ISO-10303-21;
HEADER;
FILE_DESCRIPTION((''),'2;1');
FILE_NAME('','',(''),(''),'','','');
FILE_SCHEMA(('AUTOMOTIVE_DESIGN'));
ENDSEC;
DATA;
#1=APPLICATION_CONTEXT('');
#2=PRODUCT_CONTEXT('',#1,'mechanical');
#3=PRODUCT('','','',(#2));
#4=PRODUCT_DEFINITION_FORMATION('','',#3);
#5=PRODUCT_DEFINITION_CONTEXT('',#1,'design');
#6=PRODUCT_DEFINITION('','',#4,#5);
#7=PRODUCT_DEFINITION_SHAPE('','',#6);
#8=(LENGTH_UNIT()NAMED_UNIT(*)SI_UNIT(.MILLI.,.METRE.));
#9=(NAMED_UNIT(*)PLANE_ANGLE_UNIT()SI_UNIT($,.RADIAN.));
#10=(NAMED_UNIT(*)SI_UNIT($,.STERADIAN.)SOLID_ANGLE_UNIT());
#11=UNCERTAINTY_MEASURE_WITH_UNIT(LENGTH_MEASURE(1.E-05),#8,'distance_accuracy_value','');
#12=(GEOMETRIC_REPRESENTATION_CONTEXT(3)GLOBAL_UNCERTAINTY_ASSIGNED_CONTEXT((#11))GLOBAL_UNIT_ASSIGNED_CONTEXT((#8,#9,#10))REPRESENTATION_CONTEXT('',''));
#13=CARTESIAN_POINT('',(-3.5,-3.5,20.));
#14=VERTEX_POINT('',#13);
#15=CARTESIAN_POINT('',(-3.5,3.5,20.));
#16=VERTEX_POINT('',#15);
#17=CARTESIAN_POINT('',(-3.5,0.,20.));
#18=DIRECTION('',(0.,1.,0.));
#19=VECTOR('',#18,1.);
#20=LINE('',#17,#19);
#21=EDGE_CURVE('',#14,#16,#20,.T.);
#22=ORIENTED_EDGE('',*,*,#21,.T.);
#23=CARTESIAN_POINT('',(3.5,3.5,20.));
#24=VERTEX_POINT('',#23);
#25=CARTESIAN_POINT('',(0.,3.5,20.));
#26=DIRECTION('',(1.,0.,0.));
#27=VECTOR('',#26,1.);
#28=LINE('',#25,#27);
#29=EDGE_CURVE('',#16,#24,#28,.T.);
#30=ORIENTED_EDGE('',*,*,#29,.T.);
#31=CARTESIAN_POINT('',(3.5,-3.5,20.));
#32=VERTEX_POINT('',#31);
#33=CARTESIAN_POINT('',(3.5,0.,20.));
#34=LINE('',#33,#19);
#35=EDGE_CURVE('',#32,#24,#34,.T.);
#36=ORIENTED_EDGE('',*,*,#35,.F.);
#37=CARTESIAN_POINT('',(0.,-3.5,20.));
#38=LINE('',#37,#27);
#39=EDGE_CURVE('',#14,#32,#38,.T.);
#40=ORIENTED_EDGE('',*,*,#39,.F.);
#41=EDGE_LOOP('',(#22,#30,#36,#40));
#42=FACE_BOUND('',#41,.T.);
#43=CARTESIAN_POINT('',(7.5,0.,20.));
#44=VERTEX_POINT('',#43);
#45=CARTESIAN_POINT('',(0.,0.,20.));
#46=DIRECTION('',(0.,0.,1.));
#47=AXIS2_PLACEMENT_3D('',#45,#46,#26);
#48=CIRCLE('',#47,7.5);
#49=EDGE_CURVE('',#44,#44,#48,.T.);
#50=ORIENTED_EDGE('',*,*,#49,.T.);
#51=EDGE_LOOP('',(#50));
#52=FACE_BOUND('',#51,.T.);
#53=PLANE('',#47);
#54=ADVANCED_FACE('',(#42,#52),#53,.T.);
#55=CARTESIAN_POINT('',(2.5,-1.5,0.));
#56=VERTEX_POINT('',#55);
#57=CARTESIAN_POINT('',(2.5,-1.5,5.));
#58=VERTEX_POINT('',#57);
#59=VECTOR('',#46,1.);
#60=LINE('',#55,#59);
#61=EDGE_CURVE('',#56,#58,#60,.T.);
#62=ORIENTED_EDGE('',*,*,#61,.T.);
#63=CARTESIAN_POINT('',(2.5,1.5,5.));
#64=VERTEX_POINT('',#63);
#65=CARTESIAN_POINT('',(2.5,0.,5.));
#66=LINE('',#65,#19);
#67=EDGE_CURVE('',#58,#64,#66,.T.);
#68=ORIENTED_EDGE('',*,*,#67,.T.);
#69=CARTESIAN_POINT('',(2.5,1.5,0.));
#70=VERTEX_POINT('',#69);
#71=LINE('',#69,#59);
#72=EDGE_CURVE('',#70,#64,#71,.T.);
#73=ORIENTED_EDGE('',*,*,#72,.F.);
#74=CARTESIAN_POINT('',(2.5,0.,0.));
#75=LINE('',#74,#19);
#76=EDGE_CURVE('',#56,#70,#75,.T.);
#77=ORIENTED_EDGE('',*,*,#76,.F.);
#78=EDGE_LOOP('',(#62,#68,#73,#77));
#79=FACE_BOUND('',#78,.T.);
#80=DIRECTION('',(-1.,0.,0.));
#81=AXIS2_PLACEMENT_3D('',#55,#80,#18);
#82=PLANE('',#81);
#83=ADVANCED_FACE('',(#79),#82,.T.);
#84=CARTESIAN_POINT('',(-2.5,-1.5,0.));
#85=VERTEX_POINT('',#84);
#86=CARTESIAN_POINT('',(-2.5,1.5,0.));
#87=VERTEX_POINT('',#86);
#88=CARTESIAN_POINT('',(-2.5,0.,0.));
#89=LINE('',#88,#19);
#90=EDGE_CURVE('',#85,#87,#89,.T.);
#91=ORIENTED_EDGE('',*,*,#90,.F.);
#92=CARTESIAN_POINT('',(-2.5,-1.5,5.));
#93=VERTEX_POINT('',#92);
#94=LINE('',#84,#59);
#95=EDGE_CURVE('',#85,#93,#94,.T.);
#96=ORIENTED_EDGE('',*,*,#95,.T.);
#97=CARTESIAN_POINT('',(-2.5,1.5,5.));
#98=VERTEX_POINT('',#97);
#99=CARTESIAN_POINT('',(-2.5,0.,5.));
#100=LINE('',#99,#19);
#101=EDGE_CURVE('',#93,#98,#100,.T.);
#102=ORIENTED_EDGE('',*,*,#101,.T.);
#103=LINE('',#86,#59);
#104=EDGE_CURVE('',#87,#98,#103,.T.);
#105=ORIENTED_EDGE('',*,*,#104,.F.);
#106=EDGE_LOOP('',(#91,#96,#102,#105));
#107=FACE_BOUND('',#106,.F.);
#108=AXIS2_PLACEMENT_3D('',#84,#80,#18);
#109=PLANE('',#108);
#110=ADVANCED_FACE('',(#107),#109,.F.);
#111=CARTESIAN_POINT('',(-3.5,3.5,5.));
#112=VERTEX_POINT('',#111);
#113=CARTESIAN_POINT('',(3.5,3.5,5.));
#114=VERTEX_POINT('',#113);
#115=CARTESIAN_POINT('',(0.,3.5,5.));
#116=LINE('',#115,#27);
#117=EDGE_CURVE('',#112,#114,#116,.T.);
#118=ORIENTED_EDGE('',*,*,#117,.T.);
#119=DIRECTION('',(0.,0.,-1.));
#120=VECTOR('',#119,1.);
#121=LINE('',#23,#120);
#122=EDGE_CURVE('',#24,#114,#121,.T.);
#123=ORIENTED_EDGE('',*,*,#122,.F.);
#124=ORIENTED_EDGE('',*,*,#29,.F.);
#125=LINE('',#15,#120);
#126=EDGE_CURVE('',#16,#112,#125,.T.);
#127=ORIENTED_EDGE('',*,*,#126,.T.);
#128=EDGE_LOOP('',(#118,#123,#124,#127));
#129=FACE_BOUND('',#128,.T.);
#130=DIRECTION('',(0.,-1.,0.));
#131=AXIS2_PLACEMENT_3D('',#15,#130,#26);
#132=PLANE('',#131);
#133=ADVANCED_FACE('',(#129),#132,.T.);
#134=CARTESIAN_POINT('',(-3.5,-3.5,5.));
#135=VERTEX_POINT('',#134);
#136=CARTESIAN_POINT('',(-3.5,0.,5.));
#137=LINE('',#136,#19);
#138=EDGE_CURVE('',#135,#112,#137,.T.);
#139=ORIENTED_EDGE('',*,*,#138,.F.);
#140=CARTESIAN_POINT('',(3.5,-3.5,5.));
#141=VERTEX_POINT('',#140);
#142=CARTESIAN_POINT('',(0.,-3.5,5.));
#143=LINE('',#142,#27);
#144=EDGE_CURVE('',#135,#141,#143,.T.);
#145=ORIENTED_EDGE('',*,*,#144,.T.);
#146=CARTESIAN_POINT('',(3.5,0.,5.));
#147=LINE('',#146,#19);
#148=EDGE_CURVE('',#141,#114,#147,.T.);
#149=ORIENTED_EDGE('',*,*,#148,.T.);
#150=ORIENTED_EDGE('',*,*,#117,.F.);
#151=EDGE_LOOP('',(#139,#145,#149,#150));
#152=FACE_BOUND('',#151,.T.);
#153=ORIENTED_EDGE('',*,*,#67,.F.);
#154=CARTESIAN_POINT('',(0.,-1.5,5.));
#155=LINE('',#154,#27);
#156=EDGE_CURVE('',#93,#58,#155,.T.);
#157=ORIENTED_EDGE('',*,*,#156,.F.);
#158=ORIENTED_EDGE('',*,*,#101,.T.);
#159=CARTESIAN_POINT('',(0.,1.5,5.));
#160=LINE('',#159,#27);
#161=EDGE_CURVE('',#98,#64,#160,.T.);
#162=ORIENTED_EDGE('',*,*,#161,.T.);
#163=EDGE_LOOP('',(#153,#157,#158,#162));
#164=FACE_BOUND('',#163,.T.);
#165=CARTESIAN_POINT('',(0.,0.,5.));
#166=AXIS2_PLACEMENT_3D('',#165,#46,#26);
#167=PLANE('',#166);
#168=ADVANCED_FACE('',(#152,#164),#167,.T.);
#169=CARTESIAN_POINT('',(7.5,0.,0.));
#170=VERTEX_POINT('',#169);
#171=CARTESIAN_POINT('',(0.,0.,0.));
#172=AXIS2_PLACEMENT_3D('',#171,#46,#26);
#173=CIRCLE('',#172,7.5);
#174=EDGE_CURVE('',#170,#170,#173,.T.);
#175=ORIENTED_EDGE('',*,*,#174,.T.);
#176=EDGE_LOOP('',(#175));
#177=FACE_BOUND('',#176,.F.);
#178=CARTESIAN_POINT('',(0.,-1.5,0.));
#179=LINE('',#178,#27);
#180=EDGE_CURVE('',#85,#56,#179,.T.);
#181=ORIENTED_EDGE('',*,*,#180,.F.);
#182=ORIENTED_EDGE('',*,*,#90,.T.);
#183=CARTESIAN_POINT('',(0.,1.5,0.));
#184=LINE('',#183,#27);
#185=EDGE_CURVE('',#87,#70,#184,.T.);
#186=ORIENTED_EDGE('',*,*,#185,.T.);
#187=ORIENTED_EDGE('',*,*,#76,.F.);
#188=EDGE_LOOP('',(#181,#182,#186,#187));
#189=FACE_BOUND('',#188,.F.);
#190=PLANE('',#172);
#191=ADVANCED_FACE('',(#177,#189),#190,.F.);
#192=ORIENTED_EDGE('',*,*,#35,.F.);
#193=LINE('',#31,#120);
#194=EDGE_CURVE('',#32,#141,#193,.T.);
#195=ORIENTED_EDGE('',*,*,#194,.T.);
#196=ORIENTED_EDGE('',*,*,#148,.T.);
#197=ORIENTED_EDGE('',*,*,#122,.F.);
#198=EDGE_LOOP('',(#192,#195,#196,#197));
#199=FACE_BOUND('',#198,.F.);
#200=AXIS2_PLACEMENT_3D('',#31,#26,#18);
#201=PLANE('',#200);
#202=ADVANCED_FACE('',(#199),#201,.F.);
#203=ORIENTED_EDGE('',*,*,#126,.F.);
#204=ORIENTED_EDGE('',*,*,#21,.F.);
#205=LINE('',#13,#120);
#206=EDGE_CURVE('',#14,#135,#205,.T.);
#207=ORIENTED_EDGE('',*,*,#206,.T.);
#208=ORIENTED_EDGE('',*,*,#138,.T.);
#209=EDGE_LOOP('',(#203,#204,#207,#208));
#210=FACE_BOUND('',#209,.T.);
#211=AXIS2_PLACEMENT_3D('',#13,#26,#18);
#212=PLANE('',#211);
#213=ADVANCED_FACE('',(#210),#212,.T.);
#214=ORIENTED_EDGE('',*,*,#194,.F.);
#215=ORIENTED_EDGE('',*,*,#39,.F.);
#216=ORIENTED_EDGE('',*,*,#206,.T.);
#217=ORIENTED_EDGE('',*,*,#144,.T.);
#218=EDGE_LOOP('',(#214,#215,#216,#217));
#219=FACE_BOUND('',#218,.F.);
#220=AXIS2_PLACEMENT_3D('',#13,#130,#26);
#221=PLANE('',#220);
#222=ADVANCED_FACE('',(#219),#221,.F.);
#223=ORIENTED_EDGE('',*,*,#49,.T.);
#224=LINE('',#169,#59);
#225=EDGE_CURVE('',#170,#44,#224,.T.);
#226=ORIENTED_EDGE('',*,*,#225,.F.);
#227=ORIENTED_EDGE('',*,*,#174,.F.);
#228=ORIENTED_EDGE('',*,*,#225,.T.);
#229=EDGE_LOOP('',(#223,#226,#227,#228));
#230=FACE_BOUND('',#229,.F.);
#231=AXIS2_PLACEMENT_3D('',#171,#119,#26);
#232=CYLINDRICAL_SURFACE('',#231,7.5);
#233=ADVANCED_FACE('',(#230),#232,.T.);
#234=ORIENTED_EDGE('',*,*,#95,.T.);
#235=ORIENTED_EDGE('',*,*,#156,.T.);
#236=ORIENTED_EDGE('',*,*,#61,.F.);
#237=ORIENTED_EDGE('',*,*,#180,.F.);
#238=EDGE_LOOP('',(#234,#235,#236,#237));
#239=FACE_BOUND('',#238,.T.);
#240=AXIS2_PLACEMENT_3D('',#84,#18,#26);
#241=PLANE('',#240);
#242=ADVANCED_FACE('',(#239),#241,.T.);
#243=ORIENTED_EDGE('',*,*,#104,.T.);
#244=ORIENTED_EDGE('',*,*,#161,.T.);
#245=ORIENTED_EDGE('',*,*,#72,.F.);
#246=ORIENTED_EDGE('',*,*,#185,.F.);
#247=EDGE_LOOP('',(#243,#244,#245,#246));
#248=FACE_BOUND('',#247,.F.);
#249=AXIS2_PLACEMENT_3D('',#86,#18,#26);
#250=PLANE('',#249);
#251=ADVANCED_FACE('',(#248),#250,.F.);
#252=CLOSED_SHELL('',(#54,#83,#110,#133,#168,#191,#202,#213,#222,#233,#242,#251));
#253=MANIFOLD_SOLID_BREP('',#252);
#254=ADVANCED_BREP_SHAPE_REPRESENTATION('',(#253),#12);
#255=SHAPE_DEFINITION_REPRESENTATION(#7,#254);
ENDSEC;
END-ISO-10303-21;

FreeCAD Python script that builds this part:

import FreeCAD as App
import Part
import Sketcher

V = App.Vector
Q = App.Units.Quantity


def add_polygon(sketch, points):
    """Adds a closed chain of lines whose ends are joined by coincident constraints."""
    first, n = sketch.GeometryCount, len(points)
    for a, b in zip(points, points[1:] + points[:1]):
        sketch.addGeometry(Part.LineSegment(App.Vector(*a, 0), App.Vector(*b, 0)), False)
    for i in range(n):
        sketch.addConstraint(Sketcher.Constraint("Coincident", first + i, 2, first + (i + 1) % n, 1))

doc = App.newDocument("Part")
params = doc.addObject("Spreadsheet::Sheet", "Params")
for row, (alias, value) in enumerate([
    ("sketch1_diameter", "15 mm"),
    ("sketch1_width", "5 mm"),
    ("sketch1_height", "3 mm"),
    ("pad1_length", "20 mm"),
    ("sketch2_width", "7 mm"),
    ("sketch2_width2", "5 mm"),
    ("sketch2_height", "3 mm"),
    ("pocket1_length", "15 mm"),
], start=1):
    params.set(f"A{row}", alias)
    params.set(f"B{row}", "=" + value)
    params.setAlias(f"B{row}", alias)

body = doc.addObject("PartDesign::Body", "Body")

# Sketch on XY plane
sketch1 = body.newObject("Sketcher::SketchObject", "Sketch")
sketch1.AttachmentSupport = (doc.getObject("XY_Plane"), [""])
sketch1.MapMode = "FlatFace"
sketch1.addGeometry(Part.Circle(V(0, 0, 0), V(0, 0, 1), 7.5), False)  # 0
add_polygon(sketch1, [(2.5, -1.5), (-2.5, -1.5), (-2.5, 1.5), (2.5, 1.5)])  # lines 1-4
sketch1.addConstraint(Sketcher.Constraint("Horizontal", 1))
sketch1.addConstraint(Sketcher.Constraint("Vertical", 2))
sketch1.addConstraint(Sketcher.Constraint("Horizontal", 3))
sketch1.addConstraint(Sketcher.Constraint("Vertical", 4))
sketch1.addConstraint(Sketcher.Constraint("Coincident", 0, 3, -1, 1))
sketch1.addConstraint(Sketcher.Constraint("Symmetric", 1, 2, 3, 2, -1, 1))
sketch1.addConstraint(Sketcher.Constraint("Diameter", 0, Q("15 mm")))
sketch1.addConstraint(Sketcher.Constraint("DistanceX", 1, 2, 1, 1, Q("5 mm")))
sketch1.addConstraint(Sketcher.Constraint("DistanceY", 2, 1, 2, 2, Q("3 mm")))
sketch1.setExpression("Constraints[10]", "Params.sketch1_diameter")
sketch1.setExpression("Constraints[11]", "Params.sketch1_width")
sketch1.setExpression("Constraints[12]", "Params.sketch1_height")
pad1 = body.newObject("PartDesign::Pad", "Pad")
pad1.Profile = sketch1
pad1.setExpression("Length", "Params.pad1_length")

# Sketch on XY plane
sketch2 = body.newObject("Sketcher::SketchObject", "Sketch001")
sketch2.AttachmentSupport = (doc.getObject("XY_Plane"), [""])
sketch2.MapMode = "FlatFace"
sketch2.AttachmentOffset = App.Placement(V(0, 0, 20), App.Rotation())
add_polygon(sketch2, [(-3.5, 3.5), (-3.5, -3.5), (3.5, -3.5), (3.5, 3.5)])  # lines 0-3
add_polygon(sketch2, [(2.5, -1.5), (-2.5, -1.5), (-2.5, 1.5), (2.5, 1.5)])  # lines 4-7
sketch2.addConstraint(Sketcher.Constraint("Vertical", 0))
sketch2.addConstraint(Sketcher.Constraint("Horizontal", 1))
sketch2.addConstraint(Sketcher.Constraint("Vertical", 2))
sketch2.addConstraint(Sketcher.Constraint("Horizontal", 3))
sketch2.addConstraint(Sketcher.Constraint("Horizontal", 4))
sketch2.addConstraint(Sketcher.Constraint("Vertical", 5))
sketch2.addConstraint(Sketcher.Constraint("Horizontal", 6))
sketch2.addConstraint(Sketcher.Constraint("Vertical", 7))
sketch2.addConstraint(Sketcher.Constraint("Symmetric", 0, 2, 2, 2, -1, 1))
sketch2.addConstraint(Sketcher.Constraint("Symmetric", 4, 2, 6, 2, -1, 1))
sketch2.addConstraint(Sketcher.Constraint("Equal", 3, 0))
sketch2.addConstraint(Sketcher.Constraint("DistanceX", 1, 1, 1, 2, Q("7 mm")))
sketch2.addConstraint(Sketcher.Constraint("DistanceX", 4, 2, 4, 1, Q("5 mm")))
sketch2.addConstraint(Sketcher.Constraint("DistanceY", 5, 1, 5, 2, Q("3 mm")))
sketch2.setExpression("Constraints[19]", "Params.sketch2_width")
sketch2.setExpression("Constraints[20]", "Params.sketch2_width2")
sketch2.setExpression("Constraints[21]", "Params.sketch2_height")
pocket1 = body.newObject("PartDesign::Pocket", "Pocket")
pocket1.Profile = sketch2
pocket1.setExpression("Length", "Params.pocket1_length")

doc.recompute()
